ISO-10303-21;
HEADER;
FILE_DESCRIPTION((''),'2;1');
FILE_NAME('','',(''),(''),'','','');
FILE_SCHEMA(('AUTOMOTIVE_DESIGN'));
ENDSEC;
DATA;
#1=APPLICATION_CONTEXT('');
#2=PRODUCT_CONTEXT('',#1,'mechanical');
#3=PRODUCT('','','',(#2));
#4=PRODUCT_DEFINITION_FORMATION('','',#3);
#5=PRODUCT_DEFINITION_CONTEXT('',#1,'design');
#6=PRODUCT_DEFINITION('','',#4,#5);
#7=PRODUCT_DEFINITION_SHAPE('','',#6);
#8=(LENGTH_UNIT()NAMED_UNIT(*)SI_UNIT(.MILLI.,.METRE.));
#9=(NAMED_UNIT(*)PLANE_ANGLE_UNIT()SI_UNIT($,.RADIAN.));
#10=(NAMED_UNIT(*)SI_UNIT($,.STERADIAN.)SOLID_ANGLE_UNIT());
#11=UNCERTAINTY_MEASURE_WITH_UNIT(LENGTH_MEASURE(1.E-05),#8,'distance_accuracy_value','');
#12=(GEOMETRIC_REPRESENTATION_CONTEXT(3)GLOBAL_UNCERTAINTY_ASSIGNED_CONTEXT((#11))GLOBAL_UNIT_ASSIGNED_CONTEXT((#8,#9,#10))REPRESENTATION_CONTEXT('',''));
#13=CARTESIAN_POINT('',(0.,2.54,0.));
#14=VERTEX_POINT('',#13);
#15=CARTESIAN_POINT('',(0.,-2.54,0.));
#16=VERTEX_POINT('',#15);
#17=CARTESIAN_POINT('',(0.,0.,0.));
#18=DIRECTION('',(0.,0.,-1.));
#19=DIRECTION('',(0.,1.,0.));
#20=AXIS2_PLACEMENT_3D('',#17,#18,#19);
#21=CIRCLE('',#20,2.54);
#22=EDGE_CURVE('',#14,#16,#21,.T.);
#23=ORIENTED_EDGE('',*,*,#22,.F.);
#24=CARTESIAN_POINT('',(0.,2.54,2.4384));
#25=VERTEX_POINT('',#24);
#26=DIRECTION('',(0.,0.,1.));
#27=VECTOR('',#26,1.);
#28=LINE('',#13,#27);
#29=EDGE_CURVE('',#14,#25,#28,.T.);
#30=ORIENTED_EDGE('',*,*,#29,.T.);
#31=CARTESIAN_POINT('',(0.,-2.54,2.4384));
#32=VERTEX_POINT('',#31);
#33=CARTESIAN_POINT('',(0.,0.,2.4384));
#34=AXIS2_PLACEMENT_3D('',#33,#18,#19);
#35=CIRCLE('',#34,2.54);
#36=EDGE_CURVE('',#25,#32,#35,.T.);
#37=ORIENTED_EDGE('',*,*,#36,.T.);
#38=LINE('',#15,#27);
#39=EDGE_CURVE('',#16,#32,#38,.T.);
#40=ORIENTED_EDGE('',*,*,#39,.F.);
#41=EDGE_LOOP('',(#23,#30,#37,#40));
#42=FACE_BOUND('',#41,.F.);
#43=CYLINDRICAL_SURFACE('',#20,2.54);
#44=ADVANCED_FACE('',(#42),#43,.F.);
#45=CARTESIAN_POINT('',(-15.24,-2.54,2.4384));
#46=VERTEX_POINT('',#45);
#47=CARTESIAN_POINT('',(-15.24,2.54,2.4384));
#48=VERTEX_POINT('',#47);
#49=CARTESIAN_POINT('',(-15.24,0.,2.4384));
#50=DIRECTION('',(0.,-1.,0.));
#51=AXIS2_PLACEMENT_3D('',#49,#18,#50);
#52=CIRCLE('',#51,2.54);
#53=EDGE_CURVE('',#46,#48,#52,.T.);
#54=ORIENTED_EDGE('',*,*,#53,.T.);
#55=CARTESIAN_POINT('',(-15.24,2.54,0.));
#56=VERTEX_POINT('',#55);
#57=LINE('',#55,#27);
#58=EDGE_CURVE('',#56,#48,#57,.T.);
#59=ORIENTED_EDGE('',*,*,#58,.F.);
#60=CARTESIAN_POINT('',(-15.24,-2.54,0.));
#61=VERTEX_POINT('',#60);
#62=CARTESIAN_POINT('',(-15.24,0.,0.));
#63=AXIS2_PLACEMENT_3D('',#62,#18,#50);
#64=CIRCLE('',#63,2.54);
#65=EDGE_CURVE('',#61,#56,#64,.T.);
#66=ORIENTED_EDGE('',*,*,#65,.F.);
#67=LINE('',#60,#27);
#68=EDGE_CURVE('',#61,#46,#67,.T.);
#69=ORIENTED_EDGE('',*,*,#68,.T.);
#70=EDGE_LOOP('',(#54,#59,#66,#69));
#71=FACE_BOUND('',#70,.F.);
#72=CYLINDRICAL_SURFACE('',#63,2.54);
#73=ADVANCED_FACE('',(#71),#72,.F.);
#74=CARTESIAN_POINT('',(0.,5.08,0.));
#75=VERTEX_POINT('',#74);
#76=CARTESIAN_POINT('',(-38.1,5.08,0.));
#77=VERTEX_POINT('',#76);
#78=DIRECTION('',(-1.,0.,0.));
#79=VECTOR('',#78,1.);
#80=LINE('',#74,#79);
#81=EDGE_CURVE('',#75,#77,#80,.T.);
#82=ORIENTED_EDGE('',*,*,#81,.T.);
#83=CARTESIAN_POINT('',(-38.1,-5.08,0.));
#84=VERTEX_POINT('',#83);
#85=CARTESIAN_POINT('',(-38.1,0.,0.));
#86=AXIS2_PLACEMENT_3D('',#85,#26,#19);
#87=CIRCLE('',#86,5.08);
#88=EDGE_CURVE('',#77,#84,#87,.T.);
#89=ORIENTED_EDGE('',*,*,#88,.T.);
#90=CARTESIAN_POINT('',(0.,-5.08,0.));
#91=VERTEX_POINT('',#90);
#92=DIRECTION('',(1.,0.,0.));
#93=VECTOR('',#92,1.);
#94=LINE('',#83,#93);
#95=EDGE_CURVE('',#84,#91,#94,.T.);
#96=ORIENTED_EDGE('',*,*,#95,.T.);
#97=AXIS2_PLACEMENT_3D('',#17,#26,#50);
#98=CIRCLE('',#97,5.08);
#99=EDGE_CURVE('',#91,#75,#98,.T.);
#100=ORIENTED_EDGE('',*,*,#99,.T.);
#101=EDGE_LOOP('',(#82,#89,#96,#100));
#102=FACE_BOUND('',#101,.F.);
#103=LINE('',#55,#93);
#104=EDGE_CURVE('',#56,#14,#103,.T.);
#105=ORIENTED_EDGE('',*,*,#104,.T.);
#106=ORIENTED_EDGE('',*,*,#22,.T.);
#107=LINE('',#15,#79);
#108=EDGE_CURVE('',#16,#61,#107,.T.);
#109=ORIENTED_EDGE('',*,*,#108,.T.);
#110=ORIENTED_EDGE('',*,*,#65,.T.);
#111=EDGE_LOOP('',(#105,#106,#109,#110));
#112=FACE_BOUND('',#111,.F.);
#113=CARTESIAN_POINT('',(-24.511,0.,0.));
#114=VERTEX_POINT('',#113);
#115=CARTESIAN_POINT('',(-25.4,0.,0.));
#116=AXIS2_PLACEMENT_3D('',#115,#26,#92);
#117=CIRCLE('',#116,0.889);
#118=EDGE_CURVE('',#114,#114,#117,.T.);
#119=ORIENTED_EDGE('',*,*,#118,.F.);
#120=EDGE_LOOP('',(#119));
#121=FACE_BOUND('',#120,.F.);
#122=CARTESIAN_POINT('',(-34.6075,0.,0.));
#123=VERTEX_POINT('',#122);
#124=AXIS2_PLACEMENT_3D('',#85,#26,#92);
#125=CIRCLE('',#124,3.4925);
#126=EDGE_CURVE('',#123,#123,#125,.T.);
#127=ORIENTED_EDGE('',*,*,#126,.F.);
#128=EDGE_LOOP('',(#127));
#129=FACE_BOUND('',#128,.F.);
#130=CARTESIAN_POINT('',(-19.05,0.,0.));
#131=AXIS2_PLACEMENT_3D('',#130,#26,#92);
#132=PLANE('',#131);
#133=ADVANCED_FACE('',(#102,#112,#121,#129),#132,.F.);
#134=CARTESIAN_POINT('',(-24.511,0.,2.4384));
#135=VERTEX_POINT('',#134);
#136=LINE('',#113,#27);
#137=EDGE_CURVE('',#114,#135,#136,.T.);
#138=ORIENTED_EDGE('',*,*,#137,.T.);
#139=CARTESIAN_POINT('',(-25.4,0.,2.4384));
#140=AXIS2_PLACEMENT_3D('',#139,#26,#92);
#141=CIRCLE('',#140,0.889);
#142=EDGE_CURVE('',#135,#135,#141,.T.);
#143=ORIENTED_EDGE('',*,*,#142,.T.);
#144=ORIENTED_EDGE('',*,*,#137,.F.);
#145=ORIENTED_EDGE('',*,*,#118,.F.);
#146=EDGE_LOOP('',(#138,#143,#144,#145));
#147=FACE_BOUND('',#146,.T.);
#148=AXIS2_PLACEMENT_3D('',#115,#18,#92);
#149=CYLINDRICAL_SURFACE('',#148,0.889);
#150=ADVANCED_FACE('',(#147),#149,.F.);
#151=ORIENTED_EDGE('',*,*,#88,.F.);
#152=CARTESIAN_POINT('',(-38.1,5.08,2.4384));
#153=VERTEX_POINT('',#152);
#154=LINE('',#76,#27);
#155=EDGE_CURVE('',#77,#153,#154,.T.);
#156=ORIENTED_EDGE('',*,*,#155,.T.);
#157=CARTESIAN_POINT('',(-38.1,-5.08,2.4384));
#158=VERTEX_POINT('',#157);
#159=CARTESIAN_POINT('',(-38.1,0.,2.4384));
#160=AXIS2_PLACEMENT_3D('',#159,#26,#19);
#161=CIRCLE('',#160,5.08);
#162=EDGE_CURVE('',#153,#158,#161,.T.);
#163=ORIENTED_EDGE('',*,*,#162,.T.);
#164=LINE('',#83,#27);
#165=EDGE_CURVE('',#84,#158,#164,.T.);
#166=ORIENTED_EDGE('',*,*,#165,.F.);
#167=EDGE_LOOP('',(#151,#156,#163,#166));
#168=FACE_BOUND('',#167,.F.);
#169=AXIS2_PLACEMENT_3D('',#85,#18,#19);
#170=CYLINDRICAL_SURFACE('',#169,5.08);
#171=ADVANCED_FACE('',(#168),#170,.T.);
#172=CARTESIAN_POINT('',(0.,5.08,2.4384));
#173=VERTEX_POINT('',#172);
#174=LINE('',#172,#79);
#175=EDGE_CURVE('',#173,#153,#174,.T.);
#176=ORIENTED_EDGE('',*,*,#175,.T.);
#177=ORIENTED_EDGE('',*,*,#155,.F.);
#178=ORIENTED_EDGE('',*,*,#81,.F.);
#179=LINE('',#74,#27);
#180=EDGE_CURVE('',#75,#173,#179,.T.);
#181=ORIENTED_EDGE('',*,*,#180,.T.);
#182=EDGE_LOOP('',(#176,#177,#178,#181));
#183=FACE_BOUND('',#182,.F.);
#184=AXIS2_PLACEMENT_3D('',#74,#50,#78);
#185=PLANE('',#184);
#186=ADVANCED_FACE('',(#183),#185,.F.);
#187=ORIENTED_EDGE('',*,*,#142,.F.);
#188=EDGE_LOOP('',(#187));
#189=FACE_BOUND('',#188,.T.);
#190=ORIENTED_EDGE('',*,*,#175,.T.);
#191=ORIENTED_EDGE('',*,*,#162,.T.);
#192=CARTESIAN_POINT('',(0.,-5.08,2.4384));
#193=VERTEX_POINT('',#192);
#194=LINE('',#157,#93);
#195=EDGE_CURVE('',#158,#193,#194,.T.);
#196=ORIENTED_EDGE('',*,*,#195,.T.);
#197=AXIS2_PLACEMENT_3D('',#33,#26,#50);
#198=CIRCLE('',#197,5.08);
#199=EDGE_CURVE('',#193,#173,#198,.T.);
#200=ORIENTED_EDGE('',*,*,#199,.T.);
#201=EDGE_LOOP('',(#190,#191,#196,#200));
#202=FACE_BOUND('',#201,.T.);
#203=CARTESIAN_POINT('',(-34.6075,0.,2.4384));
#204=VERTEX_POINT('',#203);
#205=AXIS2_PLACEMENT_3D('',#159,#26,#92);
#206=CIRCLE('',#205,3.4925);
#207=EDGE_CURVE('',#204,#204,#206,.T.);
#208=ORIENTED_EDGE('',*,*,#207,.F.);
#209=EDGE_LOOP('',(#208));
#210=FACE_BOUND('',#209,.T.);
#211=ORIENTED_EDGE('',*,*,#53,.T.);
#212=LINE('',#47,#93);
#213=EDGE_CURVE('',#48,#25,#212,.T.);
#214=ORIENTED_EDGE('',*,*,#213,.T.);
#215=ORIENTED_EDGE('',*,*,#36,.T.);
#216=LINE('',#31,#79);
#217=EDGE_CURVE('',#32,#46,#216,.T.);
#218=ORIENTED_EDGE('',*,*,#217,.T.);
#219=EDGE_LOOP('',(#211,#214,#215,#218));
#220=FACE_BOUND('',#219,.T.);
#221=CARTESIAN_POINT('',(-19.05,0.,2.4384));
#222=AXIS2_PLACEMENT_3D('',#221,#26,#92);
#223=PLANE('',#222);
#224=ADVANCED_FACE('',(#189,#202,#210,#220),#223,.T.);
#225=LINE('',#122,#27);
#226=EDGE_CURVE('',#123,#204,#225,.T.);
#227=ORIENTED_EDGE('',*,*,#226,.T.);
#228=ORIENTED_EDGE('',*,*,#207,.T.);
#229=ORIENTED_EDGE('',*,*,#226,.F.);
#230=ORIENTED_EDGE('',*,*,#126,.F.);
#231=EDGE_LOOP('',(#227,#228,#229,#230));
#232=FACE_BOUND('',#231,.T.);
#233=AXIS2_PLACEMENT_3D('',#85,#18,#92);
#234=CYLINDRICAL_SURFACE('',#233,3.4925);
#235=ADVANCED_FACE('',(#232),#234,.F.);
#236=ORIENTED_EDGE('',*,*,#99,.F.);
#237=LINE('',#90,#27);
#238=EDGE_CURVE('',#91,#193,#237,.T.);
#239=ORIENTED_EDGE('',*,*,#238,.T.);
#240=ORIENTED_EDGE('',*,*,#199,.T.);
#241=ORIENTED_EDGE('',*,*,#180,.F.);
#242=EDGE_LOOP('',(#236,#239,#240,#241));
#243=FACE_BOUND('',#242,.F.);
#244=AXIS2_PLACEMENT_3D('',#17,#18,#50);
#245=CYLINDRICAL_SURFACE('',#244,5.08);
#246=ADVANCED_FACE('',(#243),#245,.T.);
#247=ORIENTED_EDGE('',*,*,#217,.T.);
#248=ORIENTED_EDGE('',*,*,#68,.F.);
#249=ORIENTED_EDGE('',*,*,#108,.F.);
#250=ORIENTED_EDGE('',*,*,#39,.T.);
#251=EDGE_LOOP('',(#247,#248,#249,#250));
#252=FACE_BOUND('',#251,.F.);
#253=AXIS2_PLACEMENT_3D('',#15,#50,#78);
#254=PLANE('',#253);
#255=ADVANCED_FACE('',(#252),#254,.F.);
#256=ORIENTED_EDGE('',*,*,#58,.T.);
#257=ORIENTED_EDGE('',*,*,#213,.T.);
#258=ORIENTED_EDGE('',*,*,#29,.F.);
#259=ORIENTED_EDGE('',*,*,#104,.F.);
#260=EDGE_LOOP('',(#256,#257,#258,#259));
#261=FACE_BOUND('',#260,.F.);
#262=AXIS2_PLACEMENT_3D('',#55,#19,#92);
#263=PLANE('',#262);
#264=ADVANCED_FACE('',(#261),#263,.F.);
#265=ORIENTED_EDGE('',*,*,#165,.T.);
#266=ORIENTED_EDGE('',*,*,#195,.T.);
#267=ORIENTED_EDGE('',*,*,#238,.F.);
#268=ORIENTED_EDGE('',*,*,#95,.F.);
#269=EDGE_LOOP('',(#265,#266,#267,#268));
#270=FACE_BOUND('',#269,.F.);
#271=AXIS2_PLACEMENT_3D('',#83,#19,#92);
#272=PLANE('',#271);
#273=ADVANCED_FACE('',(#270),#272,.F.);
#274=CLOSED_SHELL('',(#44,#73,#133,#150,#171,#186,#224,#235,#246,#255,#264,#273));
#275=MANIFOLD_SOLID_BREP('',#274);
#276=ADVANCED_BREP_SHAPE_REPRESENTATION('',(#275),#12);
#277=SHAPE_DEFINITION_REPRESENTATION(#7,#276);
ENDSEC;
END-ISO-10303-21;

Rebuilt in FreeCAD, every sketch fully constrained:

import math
import FreeCAD as App
import Part
import Sketcher
from FreeCAD import Vector
Q = App.Units.Quantity

doc = App.newDocument("Part")
params = doc.addObject("Spreadsheet::Sheet", "Params")
for row, (alias, value) in enumerate([
    ("sketch1_radius", "0.2 in"),
    ("sketch1_radius2", "0.1 in"),
    ("sketch1_diameter", "0.07 in"),
    ("sketch1_diameter2", "0.275 in"),
    ("sketch1_width", "1.5 in"),
    ("pad1_length", "0.096 in"),
], start=1):
    params.set(f"A{row}", alias)
    params.set(f"B{row}", "=" + value)
    params.setAlias(f"B{row}", alias)

body = doc.addObject("PartDesign::Body", "Body")

# Sketch on XY plane
sketch1 = body.newObject("Sketcher::SketchObject", "Sketch")
sketch1.AttachmentSupport = (doc.getObject("XY_Plane"), [""])
sketch1.MapMode = "FlatFace"
sketch1.addGeometry([
    Part.LineSegment(Vector(-38.1, -5.1, 0), Vector(0, -5.1, 0)),  # 0
    Part.ArcOfCircle(Part.Circle(Vector(0, 0, 0), Vector(0, 0, 1), 5.1), math.radians(-90), math.radians(90)),  # 1
    Part.LineSegment(Vector(0, 5.1, 0), Vector(-38.1, 5.1, 0)),  # 2
    Part.ArcOfCircle(Part.Circle(Vector(-38.1, 0, 0), Vector(0, 0, 1), 5.1), math.radians(90), math.radians(270)),  # 3
    Part.Circle(Vector(-38.1, 0, 0), Vector(0, 0, 1), 3.5),  # 4
    Part.Circle(Vector(-25.4, 0, 0), Vector(0, 0, 1), 0.9),  # 5
    Part.LineSegment(Vector(-15.2, 2.5, 0), Vector(0, 2.5, 0)),  # 6
    Part.ArcOfCircle(Part.Circle(Vector(0, 0, 0), Vector(0, 0, 1), 2.5), math.radians(-90), math.radians(90)),  # 7
    Part.LineSegment(Vector(0, -2.5, 0), Vector(-15.2, -2.5, 0)),  # 8
    Part.ArcOfCircle(Part.Circle(Vector(-15.2, 0, 0), Vector(0, 0, 1), 2.5), math.radians(90), math.radians(270)),  # 9
], False)
sketch1.addConstraint([
    Sketcher.Constraint("Tangent", 0, 2, 1, 1),
    Sketcher.Constraint("Tangent", 1, 2, 2, 1),
    Sketcher.Constraint("Tangent", 2, 2, 3, 1),
    Sketcher.Constraint("Tangent", 3, 2, 0, 1),
    Sketcher.Constraint("Tangent", 6, 2, 7, 2),
    Sketcher.Constraint("Tangent", 7, 1, 8, 1),
    Sketcher.Constraint("Tangent", 8, 2, 9, 2),
    Sketcher.Constraint("Tangent", 9, 1, 6, 1),
    Sketcher.Constraint("Horizontal", 0),
    Sketcher.Constraint("Horizontal", 2),
    Sketcher.Constraint("Horizontal", 6),
    Sketcher.Constraint("Horizontal", 8),
    Sketcher.Constraint("Coincident", 1, 3, -1, 1),
    Sketcher.Constraint("Coincident", 7, 3, -1, 1),
    Sketcher.Constraint("Coincident", 4, 3, 3, 3),
    Sketcher.Constraint("PointOnObject", 5, 3, -1),
    Sketcher.Constraint("Radius", 1, Q("0.2 in")),
    Sketcher.Constraint("Radius", 7, Q("0.1 in")),
    Sketcher.Constraint("Diameter", 5, Q("0.07 in")),
    Sketcher.Constraint("Diameter", 4, Q("0.275 in")),
    Sketcher.Constraint("DistanceX", 0, 1, 0, 2, Q("1.5 in")),
    Sketcher.Constraint("DistanceX", 6, 1, 6, 2, Q("0.6 in")),
    Sketcher.Constraint("DistanceX", 5, 3, -1, 1, Q("1 in")),
])
sketch1.setExpression("Constraints[16]", "Params.sketch1_radius")
sketch1.setExpression("Constraints[17]", "Params.sketch1_radius2")
sketch1.setExpression("Constraints[18]", "Params.sketch1_diameter")
sketch1.setExpression("Constraints[19]", "Params.sketch1_diameter2")
sketch1.setExpression("Constraints[20]", "Params.sketch1_width")
pad1 = body.newObject("PartDesign::Pad", "Pad")
pad1.Profile = sketch1
pad1.setExpression("Length", "Params.pad1_length")

doc.recompute()
